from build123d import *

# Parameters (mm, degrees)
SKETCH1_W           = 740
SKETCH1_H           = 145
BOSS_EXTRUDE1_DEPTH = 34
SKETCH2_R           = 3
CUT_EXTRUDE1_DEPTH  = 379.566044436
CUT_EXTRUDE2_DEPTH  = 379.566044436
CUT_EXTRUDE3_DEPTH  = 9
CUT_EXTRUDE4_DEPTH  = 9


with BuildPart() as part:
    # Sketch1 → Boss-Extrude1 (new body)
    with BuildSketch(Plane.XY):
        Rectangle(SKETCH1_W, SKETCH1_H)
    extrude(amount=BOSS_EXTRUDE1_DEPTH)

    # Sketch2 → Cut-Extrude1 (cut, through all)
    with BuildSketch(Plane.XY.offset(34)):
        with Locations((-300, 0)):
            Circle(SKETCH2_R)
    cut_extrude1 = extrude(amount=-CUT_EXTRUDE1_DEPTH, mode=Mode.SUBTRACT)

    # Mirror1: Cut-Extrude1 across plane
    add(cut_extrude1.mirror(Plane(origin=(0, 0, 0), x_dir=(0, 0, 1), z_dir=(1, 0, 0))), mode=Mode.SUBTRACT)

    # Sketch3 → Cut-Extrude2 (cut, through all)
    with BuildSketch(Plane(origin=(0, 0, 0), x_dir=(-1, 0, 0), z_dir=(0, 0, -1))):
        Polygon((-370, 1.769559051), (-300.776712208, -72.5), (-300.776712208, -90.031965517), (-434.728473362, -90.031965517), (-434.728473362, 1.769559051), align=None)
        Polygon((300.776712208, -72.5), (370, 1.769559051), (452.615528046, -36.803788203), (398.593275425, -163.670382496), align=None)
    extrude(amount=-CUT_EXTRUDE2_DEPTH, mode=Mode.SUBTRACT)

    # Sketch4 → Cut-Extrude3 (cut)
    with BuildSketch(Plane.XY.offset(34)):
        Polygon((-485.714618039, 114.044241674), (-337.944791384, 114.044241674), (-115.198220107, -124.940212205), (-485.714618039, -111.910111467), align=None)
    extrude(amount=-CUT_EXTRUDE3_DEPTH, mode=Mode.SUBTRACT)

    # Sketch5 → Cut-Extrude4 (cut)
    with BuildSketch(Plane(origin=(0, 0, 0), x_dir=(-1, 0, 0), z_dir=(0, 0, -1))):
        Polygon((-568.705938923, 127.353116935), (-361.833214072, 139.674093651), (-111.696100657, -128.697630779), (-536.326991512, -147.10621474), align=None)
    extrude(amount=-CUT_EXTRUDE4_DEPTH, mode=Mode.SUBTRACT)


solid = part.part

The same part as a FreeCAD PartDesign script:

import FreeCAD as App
import Part
import Sketcher
from FreeCAD import Vector
Q = App.Units.Quantity

doc = App.newDocument("Part")
params = doc.addObject("Spreadsheet::Sheet", "Params")
for row, (alias, value) in enumerate([
    ("sketch1_width", "740 mm"),
    ("sketch1_height", "145 mm"),
    ("pad1_length", "34 mm"),
    ("sketch2_diameter", "6 mm"),
    ("pocket3_length", "9 mm"),
    ("pocket4_length", "9 mm"),
], start=1):
    params.set(f"A{row}", alias)
    params.set(f"B{row}", "=" + value)
    params.setAlias(f"B{row}", alias)

body = doc.addObject("PartDesign::Body", "Body")

sketch1 = body.newObject("Sketcher::SketchObject", "Sketch")
sketch1.AttachmentSupport = (doc.getObject("XY_Plane"), [""])
sketch1.MapMode = "FlatFace"
sketch1.addGeometry([
    Part.LineSegment(Vector(-370, 72, 0), Vector(-370, -72, 0)),
    Part.LineSegment(Vector(-370, -72, 0), Vector(370, -72, 0)),
    Part.LineSegment(Vector(370, -72, 0), Vector(370, 72, 0)),
    Part.LineSegment(Vector(370, 72, 0), Vector(-370, 72, 0)),
], False)
sketch1.addConstraint([
    Sketcher.Constraint("Coincident", 0, 2, 1, 1),
    Sketcher.Constraint("Coincident", 1, 2, 2, 1),
    Sketcher.Constraint("Coincident", 2, 2, 3, 1),
    Sketcher.Constraint("Coincident", 3, 2, 0, 1),
    Sketcher.Constraint("Vertical", 0),
    Sketcher.Constraint("Horizontal", 1),
    Sketcher.Constraint("Vertical", 2),
    Sketcher.Constraint("Horizontal", 3),
    Sketcher.Constraint("Symmetric", 0, 2, 2, 2, -1, 1),
    Sketcher.Constraint("DistanceX", 1, 1, 1, 2, Q("740 mm")),
    Sketcher.Constraint("DistanceY", 0, 2, 0, 1, Q("145 mm")),
])
sketch1.setExpression("Constraints[9]", "Params.sketch1_width")
sketch1.setExpression("Constraints[10]", "Params.sketch1_height")
pad1 = body.newObject("PartDesign::Pad", "Pad")
pad1.Profile = sketch1
pad1.setExpression("Length", "Params.pad1_length")

sketch2 = body.newObject("Sketcher::SketchObject", "Sketch001")
sketch2.AttachmentSupport = (doc.getObject("XY_Plane"), [""])
sketch2.MapMode = "FlatFace"
sketch2.AttachmentOffset = App.Placement(Vector(0, 0, 34), App.Rotation())
sketch2.addGeometry(Part.Circle(Vector(-300, 0, 0), Vector(0, 0, 1), 3), False)
sketch2.addConstraint([
    Sketcher.Constraint("PointOnObject", 0, 3, -1),
    Sketcher.Constraint("Diameter", 0, Q("6 mm")),
    Sketcher.Constraint("DistanceX", 0, 3, -1, 1, Q("300 mm")),
])
sketch2.setExpression("Constraints[1]", "Params.sketch2_diameter")
pocket1 = body.newObject("PartDesign::Pocket", "Pocket")
pocket1.Profile = sketch2
pocket1.Type = "ThroughAll"
doc.recompute()

mirrored = body.newObject("PartDesign::Mirrored", "Mirrored")
mirrored.Originals = [pocket1]
mirrored.MirrorPlane = (doc.getObject("YZ_Plane"), [""])
body.Tip = mirrored

sketch3 = body.newObject("Sketcher::SketchObject", "Sketch002")
sketch3.AttachmentSupport = (doc.getObject("XY_Plane"), [""])
sketch3.MapMode = "FlatFace"
sketch3.addGeometry([
    Part.LineSegment(Vector(301, -72, 0), Vector(370, 2, 0)),
    Part.LineSegment(Vector(370, 2, 0), Vector(435, 2, 0)),
    Part.LineSegment(Vector(435, 2, 0), Vector(435, -90, 0)),
    Part.LineSegment(Vector(435, -90, 0), Vector(301, -90, 0)),
    Part.LineSegment(Vector(301, -90, 0), Vector(301, -72, 0)),
    Part.LineSegment(Vector(-370, 2, 0), Vector(-301, -72, 0)),
    Part.LineSegment(Vector(-301, -72, 0), Vector(-399, -164, 0)),
    Part.LineSegment(Vector(-399, -164, 0), Vector(-453, -37, 0)),
    Part.LineSegment(Vector(-453, -37, 0), Vector(-370, 2, 0)),
], False)
sketch3.addConstraint([
    Sketcher.Constraint("Coincident", 0, 2, 1, 1),
    Sketcher.Constraint("Coincident", 1, 2, 2, 1),
    Sketcher.Constraint("Coincident", 2, 2, 3, 1),
    Sketcher.Constraint("Coincident", 3, 2, 4, 1),
    Sketcher.Constraint("Coincident", 4, 2, 0, 1),
    Sketcher.Constraint("Coincident", 5, 2, 6, 1),
    Sketcher.Constraint("Coincident", 6, 2, 7, 1),
    Sketcher.Constraint("Coincident", 7, 2, 8, 1),
    Sketcher.Constraint("Coincident", 8, 2, 5, 1),
    Sketcher.Constraint("Horizontal", 1),
    Sketcher.Constraint("Vertical", 2),
    Sketcher.Constraint("Horizontal", 3),
    Sketcher.Constraint("Vertical", 4),
    Sketcher.Constraint("Symmetric", 4, 2, 5, 2, -2),
    Sketcher.Constraint("Symmetric", 0, 2, 8, 2, -2),
    Sketcher.Constraint("Perpendicular", 5, 6),
    Sketcher.Constraint("DistanceX", -1, 1, 0, 2, Q("370 mm")),
    Sketcher.Constraint("DistanceY", 4, 2, -1, 1, Q("72.5 mm")),
    Sketcher.Constraint("DistanceX", 3, 2, 3, 1, Q("133.951761 mm")),
    Sketcher.Constraint("Distance", 0, Q("101.527489 mm")),
    Sketcher.Constraint("Distance", 6, Q("133.716561 mm")),
    Sketcher.Constraint("Distance", 7, Q("137.889581 mm")),
    Sketcher.Constraint("Distance", 8, Q("91.176908 mm")),
    Sketcher.Constraint("DistanceX", 1, 1, 1, 2, Q("64.728473 mm")),
    Sketcher.Constraint("DistanceY", 2, 2, 2, 1, Q("91.801525 mm")),
])
pocket2 = body.newObject("PartDesign::Pocket", "Pocket001")
pocket2.Profile = sketch3
pocket2.Type = "ThroughAll"
pocket2.Reversed = True

sketch4 = body.newObject("Sketcher::SketchObject", "Sketch003")
sketch4.AttachmentSupport = (doc.getObject("XY_Plane"), [""])
sketch4.MapMode = "FlatFace"
sketch4.AttachmentOffset = App.Placement(Vector(0, 0, 34), App.Rotation())
sketch4.addGeometry([
    Part.LineSegment(Vector(-338, 114, 0), Vector(-486, 114, 0)),
    Part.LineSegment(Vector(-486, 114, 0), Vector(-486, -112, 0)),
    Part.LineSegment(Vector(-486, -112, 0), Vector(-115, -125, 0)),
    Part.LineSegment(Vector(-115, -125, 0), Vector(-338, 114, 0)),
], False)
sketch4.addConstraint([
    Sketcher.Constraint("Coincident", 0, 2, 1, 1),
    Sketcher.Constraint("Coincident", 1, 2, 2, 1),
    Sketcher.Constraint("Coincident", 2, 2, 3, 1),
    Sketcher.Constraint("Coincident", 3, 2, 0, 1),
    Sketcher.Constraint("Horizontal", 0),
    Sketcher.Constraint("Vertical", 1),
    Sketcher.Constraint("DistanceY", 2, 2, 1, 2, Q("13.030101 mm")),
    Sketcher.Constraint("Distance", 3, Q("326.694971 mm")),
    Sketcher.Constraint("DistanceX", 0, 2, 0, 1, Q("147.769827 mm")),
    Sketcher.Constraint("DistanceY", 1, 2, 1, 1, Q("225.954353 mm")),
    Sketcher.Constraint("DistanceX", 0, 2, -1, 1, Q("485.714618 mm")),
    Sketcher.Constraint("DistanceY", -1, 1, 0, 2, Q("114.044242 mm")),
])
pocket3 = body.newObject("PartDesign::Pocket", "Pocket002")
pocket3.Profile = sketch4
pocket3.setExpression("Length", "Params.pocket3_length")

sketch5 = body.newObject("Sketcher::SketchObject", "Sketch004")
sketch5.AttachmentSupport = (doc.getObject("XY_Plane"), [""])
sketch5.MapMode = "FlatFace"
sketch5.addGeometry([
    Part.LineSegment(Vector(362, 140, 0), Vector(569, 127, 0)),
    Part.LineSegment(Vector(569, 127, 0), Vector(536, -147, 0)),
    Part.LineSegment(Vector(536, -147, 0), Vector(112, -129, 0)),
    Part.LineSegment(Vector(112, -129, 0), Vector(362, 140, 0)),
], False)
sketch5.addConstraint([
    Sketcher.Constraint("Coincident", 0, 2, 1, 1),
    Sketcher.Constraint("Coincident", 1, 2, 2, 1),
    Sketcher.Constraint("Coincident", 2, 2, 3, 1),
    Sketcher.Constraint("Coincident", 3, 2, 0, 1),
    Sketcher.Constraint("DistanceX", -1, 1, 2, 2, Q("111.696101 mm")),
    Sketcher.Constraint("DistanceX", -1, 1, 0, 2, Q("568.705939 mm")),
    Sketcher.Constraint("DistanceX", -1, 1, 1, 2, Q("536.326992 mm")),
    Sketcher.Constraint("DistanceY", 2, 2, -1, 1, Q("128.697631 mm")),
    Sketcher.Constraint("DistanceY", 1, 2, 0, 2, Q("274.459332 mm")),
    Sketcher.Constraint("DistanceY", 1, 2, 3, 2, Q("286.780308 mm")),
    Sketcher.Constraint("Distance", 0, Q("207.239308 mm")),
    Sketcher.Constraint("Distance", 2, Q("425.029728 mm")),
])
pocket4 = body.newObject("PartDesign::Pocket", "Pocket003")
pocket4.Profile = sketch5
pocket4.setExpression("Length", "Params.pocket4_length")
pocket4.Reversed = True

doc.recompute()
